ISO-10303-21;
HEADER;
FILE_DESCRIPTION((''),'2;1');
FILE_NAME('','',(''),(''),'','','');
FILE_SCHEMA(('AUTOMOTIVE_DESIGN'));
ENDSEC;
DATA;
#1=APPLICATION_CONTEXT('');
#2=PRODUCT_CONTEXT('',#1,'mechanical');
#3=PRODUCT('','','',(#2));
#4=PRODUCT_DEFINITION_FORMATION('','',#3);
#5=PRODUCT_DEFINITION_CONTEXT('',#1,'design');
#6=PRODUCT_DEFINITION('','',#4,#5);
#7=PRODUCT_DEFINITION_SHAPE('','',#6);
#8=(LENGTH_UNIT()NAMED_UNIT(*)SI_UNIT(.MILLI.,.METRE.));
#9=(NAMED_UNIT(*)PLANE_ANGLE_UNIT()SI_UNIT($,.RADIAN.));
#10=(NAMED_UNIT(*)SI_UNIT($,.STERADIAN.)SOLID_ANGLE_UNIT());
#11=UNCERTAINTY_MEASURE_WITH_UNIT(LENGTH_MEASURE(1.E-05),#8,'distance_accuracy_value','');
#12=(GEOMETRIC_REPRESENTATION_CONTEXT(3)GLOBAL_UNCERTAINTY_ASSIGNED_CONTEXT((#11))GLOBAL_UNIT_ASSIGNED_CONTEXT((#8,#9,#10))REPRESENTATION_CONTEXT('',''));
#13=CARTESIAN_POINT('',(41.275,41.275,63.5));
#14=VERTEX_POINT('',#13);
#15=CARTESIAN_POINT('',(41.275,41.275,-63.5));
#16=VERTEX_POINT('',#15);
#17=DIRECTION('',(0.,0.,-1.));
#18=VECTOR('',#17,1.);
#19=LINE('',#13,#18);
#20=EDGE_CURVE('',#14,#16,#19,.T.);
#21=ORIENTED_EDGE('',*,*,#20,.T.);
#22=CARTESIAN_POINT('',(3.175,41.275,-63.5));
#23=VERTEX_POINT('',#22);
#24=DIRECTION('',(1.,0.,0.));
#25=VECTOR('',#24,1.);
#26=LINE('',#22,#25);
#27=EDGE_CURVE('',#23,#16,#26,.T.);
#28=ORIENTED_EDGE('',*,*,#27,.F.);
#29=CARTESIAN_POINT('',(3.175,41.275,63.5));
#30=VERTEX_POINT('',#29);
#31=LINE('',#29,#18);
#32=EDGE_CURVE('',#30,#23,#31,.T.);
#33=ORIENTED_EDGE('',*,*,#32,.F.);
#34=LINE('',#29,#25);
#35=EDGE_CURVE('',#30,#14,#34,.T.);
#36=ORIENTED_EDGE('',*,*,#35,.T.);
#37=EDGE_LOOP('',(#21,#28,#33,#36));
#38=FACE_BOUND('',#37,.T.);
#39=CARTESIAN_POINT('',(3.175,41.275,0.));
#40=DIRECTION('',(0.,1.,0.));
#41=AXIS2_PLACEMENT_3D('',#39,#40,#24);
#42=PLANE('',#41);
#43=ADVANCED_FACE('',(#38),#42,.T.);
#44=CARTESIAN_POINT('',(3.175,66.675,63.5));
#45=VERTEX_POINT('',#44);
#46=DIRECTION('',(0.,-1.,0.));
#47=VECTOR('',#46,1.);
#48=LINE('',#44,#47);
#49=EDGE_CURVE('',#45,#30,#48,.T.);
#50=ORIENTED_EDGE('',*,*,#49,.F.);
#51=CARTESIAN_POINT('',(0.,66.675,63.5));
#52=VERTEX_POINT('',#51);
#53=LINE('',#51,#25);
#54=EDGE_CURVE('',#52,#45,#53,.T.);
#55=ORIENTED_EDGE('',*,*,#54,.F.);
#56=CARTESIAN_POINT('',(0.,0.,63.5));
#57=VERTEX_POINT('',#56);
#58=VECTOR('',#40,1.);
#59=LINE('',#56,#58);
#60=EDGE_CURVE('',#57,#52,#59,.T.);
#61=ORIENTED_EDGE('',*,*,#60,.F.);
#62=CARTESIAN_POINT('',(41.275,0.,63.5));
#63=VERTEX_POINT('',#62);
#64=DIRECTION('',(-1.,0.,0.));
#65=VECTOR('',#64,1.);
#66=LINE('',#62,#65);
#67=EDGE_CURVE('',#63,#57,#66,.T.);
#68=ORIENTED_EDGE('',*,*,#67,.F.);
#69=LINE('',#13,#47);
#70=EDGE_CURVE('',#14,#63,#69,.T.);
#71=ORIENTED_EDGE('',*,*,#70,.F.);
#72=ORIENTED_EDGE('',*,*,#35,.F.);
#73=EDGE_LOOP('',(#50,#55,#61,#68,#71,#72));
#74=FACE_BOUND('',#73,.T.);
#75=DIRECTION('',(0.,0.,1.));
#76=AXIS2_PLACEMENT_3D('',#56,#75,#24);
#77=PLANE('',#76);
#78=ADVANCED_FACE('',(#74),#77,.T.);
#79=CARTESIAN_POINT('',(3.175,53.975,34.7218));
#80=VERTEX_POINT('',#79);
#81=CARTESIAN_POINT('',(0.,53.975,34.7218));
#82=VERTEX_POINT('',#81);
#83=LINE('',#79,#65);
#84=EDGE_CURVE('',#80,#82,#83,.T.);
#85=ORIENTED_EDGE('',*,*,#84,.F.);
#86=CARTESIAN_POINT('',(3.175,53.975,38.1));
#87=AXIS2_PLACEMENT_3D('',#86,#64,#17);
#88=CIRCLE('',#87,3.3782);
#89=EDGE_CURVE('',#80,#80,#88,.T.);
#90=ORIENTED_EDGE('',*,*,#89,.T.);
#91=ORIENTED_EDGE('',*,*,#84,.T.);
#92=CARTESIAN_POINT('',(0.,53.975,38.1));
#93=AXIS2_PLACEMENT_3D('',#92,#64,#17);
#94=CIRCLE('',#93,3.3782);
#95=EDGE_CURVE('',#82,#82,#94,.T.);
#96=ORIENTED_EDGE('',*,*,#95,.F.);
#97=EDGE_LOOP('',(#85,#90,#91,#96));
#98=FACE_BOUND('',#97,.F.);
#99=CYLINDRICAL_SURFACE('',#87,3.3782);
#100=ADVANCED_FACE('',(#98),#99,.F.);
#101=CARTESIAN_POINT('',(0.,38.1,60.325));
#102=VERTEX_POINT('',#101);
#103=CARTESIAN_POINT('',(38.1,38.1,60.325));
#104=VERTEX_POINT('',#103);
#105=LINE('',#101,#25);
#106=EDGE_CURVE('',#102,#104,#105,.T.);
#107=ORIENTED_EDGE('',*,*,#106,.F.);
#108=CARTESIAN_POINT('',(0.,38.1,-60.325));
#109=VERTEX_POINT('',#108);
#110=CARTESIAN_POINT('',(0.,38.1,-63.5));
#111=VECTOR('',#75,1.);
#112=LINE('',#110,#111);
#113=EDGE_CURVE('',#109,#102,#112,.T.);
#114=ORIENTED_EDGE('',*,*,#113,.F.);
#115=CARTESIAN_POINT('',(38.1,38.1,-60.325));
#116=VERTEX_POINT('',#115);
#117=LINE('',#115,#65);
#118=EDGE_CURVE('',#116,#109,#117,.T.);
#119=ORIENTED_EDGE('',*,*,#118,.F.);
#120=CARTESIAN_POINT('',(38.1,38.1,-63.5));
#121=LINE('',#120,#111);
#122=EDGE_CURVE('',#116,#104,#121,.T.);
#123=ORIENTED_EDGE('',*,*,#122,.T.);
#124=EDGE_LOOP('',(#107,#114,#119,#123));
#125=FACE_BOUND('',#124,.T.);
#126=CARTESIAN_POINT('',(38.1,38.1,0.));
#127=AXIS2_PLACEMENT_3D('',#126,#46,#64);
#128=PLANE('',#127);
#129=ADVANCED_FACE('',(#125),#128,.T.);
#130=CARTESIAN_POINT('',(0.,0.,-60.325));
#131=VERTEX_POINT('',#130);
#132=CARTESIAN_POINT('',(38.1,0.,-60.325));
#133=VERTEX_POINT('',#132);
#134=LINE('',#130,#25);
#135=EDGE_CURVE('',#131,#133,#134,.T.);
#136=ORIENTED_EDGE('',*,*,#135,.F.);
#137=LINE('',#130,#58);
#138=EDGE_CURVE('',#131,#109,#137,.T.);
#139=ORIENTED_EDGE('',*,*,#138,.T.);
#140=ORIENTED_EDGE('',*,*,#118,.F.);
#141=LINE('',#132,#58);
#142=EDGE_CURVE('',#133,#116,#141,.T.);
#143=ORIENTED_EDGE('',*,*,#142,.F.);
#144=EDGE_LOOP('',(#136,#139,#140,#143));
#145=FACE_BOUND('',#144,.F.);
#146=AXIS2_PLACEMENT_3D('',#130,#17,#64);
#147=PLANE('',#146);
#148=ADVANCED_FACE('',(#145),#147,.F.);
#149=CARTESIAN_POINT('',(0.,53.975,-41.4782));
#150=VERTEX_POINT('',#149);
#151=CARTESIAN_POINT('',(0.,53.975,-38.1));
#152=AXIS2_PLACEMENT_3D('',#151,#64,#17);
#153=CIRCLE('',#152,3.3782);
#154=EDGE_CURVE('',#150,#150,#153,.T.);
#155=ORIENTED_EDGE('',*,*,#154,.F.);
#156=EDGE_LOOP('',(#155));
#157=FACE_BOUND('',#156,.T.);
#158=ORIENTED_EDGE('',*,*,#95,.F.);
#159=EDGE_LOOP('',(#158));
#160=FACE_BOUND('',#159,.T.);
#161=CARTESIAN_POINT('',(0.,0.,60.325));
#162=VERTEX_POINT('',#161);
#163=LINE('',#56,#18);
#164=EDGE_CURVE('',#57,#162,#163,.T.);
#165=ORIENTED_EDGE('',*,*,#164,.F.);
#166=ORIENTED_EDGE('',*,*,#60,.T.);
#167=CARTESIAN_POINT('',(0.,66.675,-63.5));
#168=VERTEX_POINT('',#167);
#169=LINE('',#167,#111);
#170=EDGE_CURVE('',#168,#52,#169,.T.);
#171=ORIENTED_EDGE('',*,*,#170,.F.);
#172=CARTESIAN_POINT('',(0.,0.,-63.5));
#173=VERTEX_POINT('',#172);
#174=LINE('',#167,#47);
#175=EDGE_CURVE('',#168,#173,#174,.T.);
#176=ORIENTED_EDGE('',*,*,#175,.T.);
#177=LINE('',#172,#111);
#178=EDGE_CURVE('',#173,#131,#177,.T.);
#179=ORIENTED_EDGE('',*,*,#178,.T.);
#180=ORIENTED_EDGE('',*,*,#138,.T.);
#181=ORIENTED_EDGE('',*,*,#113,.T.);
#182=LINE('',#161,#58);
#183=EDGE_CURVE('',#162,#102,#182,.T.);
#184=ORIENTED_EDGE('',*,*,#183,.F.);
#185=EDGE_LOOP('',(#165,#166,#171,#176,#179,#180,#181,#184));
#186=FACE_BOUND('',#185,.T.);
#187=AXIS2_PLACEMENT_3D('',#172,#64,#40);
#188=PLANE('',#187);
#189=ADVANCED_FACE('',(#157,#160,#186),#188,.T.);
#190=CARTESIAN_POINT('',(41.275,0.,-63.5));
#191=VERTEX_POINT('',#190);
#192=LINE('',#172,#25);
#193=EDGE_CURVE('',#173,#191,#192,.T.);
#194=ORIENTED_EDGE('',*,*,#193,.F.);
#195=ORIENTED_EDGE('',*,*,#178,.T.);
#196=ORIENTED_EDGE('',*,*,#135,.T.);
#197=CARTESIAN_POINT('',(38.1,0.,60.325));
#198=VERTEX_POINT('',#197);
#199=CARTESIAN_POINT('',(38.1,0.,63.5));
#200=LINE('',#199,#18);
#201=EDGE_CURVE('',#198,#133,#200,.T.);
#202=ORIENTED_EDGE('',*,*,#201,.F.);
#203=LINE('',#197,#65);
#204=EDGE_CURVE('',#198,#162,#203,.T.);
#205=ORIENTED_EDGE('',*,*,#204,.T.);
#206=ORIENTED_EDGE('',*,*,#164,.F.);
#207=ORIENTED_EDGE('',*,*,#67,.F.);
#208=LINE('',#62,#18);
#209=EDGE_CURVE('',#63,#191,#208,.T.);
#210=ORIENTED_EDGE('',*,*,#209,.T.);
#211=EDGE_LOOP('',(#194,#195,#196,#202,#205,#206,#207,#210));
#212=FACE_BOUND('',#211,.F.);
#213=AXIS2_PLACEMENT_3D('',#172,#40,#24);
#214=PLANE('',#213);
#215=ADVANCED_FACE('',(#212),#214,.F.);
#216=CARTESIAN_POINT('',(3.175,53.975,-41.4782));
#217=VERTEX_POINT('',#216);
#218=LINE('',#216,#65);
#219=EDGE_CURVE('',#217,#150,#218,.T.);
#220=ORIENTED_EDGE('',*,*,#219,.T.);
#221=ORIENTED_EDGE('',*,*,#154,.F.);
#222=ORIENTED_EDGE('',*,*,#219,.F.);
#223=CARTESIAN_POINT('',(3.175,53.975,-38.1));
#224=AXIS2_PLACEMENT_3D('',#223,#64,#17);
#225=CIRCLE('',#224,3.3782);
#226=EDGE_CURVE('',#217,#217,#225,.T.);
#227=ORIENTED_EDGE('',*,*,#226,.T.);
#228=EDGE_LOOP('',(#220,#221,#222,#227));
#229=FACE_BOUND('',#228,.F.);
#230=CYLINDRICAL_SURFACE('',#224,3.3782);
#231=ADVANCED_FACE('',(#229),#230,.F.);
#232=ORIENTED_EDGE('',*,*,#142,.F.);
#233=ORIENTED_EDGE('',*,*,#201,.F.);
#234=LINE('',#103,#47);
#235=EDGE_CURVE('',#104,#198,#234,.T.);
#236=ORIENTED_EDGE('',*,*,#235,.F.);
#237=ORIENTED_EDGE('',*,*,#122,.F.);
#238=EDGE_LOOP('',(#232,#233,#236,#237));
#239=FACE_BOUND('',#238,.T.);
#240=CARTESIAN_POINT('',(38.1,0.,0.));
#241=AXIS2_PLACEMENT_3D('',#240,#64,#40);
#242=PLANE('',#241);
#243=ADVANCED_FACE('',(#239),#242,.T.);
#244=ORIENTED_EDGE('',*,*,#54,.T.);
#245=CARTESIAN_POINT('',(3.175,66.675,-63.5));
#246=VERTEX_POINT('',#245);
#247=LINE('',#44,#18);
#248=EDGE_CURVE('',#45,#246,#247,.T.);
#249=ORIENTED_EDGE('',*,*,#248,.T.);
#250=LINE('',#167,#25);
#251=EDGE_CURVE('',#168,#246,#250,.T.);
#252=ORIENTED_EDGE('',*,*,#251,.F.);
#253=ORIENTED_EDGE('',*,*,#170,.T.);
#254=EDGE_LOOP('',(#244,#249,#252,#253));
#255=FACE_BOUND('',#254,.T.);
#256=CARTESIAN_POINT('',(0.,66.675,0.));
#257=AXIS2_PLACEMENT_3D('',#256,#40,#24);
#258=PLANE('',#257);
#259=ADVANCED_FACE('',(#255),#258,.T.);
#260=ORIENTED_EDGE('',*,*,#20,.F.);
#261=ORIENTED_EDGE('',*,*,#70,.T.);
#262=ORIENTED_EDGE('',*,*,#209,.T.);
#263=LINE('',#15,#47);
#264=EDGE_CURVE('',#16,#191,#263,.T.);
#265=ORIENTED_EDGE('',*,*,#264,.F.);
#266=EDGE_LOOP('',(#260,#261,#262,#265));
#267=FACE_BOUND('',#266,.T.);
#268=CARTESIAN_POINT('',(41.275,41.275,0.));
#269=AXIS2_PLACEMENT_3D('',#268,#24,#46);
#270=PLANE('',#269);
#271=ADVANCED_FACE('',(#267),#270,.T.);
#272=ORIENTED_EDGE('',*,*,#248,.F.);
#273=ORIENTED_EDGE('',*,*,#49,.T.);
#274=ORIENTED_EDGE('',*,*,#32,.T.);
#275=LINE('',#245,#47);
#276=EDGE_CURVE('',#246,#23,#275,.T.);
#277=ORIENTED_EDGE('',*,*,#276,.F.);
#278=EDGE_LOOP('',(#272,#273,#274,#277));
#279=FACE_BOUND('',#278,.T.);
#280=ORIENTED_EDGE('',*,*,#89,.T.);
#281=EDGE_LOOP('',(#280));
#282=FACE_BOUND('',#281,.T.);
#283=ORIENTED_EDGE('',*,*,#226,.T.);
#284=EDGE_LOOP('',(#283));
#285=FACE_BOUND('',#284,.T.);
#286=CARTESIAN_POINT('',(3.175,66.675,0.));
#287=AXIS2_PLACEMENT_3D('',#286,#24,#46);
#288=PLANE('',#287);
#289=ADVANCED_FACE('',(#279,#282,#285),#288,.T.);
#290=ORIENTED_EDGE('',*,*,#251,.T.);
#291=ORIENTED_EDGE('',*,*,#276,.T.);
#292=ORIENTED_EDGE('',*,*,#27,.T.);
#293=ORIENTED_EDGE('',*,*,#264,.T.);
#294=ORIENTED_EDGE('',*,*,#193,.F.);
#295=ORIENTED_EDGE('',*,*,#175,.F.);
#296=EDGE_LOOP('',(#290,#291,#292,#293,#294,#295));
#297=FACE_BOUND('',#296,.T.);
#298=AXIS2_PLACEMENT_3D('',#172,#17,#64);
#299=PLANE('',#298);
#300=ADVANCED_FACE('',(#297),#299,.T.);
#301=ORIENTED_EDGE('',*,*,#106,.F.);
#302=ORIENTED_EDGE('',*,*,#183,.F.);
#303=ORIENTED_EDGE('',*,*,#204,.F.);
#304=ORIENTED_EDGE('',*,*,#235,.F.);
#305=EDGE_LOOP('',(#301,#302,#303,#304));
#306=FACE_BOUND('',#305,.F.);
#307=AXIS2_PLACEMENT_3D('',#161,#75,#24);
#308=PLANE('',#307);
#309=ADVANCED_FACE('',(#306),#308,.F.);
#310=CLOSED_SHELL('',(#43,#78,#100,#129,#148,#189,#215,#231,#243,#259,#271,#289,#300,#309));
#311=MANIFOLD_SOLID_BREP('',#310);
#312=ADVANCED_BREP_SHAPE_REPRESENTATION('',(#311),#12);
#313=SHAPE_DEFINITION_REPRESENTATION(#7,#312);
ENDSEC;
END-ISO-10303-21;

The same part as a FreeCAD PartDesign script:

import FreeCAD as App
import Part
import Sketcher
from FreeCAD import Vector
Q = App.Units.Quantity

doc = App.newDocument("Part")
body = doc.addObject("PartDesign::Body", "Body")

# Sketch on XY plane
sketch1 = doc.addObject("Sketcher::SketchObject", "Sketch")
body.addObject(sketch1)
sketch1.AttachmentSupport = (doc.XY_Plane, [""])
sketch1.MapMode = "FlatFace"
sketch1.addGeometry(Part.LineSegment(Vector(3.2, 66.7, 0), Vector(0, 66.7, 0)), False)
sketch1.addGeometry(Part.LineSegment(Vector(0, 66.7, 0), Vector(0, 38.1, 0)), False)
sketch1.addGeometry(Part.LineSegment(Vector(0, 38.1, 0), Vector(38.1, 38.1, 0)), False)
sketch1.addGeometry(Part.LineSegment(Vector(38.1, 38.1, 0), Vector(38.1, 0, 0)), False)
sketch1.addGeometry(Part.LineSegment(Vector(38.1, 0, 0), Vector(41.3, 0, 0)), False)
sketch1.addGeometry(Part.LineSegment(Vector(41.3, 0, 0), Vector(41.3, 41.3, 0)), False)
sketch1.addGeometry(Part.LineSegment(Vector(41.3, 41.3, 0), Vector(3.2, 41.3, 0)), False)
sketch1.addGeometry(Part.LineSegment(Vector(3.2, 41.3, 0), Vector(3.2, 66.7, 0)), False)
sketch1.addConstraint(Sketcher.Constraint("Coincident", 0, 2, 1, 1))
sketch1.addConstraint(Sketcher.Constraint("Coincident", 1, 2, 2, 1))
sketch1.addConstraint(Sketcher.Constraint("Coincident", 2, 2, 3, 1))
sketch1.addConstraint(Sketcher.Constraint("Coincident", 3, 2, 4, 1))
sketch1.addConstraint(Sketcher.Constraint("Coincident", 4, 2, 5, 1))
sketch1.addConstraint(Sketcher.Constraint("Coincident", 5, 2, 6, 1))
sketch1.addConstraint(Sketcher.Constraint("Coincident", 6, 2, 7, 1))
sketch1.addConstraint(Sketcher.Constraint("Coincident", 7, 2, 0, 1))
sketch1.addConstraint(Sketcher.Constraint("Horizontal", 0))
sketch1.addConstraint(Sketcher.Constraint("Vertical", 1))
sketch1.addConstraint(Sketcher.Constraint("Horizontal", 2))
sketch1.addConstraint(Sketcher.Constraint("Vertical", 3))
sketch1.addConstraint(Sketcher.Constraint("Horizontal", 4))
sketch1.addConstraint(Sketcher.Constraint("Vertical", 5))
sketch1.addConstraint(Sketcher.Constraint("Horizontal", 6))
sketch1.addConstraint(Sketcher.Constraint("Vertical", 7))
sketch1.addConstraint(Sketcher.Constraint("PointOnObject", 0, 2, -2))
sketch1.addConstraint(Sketcher.Constraint("PointOnObject", 3, 2, -1))
sketch1.addConstraint(Sketcher.Constraint("Equal", 0, 4))
sketch1.addConstraint(Sketcher.Constraint("Equal", 6, 3))
sketch1.addConstraint(Sketcher.Constraint("DistanceY", 7, 1, 7, 2, Q("1 in")))
sketch1.addConstraint(Sketcher.Constraint("DistanceX", 2, 1, 2, 2, Q("1.5 in")))
sketch1.addConstraint(Sketcher.Constraint("DistanceX", 0, 2, 0, 1, Q("0.125 in")))
sketch1.addConstraint(Sketcher.Constraint("DistanceY", 2, 2, 5, 2, Q("0.125 in")))
pad1 = doc.addObject("PartDesign::Pad", "Pad")
body.addObject(pad1)
pad1.Profile = sketch1
pad1.Length = Q("5 in")
pad1.Midplane = True

# Sketch on XY plane
sketch2 = doc.addObject("Sketcher::SketchObject", "Sketch001")
body.addObject(sketch2)
sketch2.AttachmentSupport = (doc.XY_Plane, [""])
sketch2.MapMode = "FlatFace"
sketch2.AttachmentOffset = App.Placement(Vector(0, 0, 2.5 * 25.4), App.Rotation())
sketch2.addGeometry(Part.LineSegment(Vector(38, 38, 0), Vector(0, 38, 0)), False)
sketch2.addGeometry(Part.LineSegment(Vector(0, 38, 0), Vector(0, 0, 0)), False)
sketch2.addGeometry(Part.LineSegment(Vector(0, 0, 0), Vector(38, 0, 0)), False)
sketch2.addGeometry(Part.LineSegment(Vector(38, 0, 0), Vector(38, 38, 0)), False)
sketch2.addConstraint(Sketcher.Constraint("Coincident", 0, 2, 1, 1))
sketch2.addConstraint(Sketcher.Constraint("Coincident", 1, 2, 2, 1))
sketch2.addConstraint(Sketcher.Constraint("Coincident", 2, 2, 3, 1))
sketch2.addConstraint(Sketcher.Constraint("Coincident", 3, 2, 0, 1))
sketch2.addConstraint(Sketcher.Constraint("Horizontal", 0))
sketch2.addConstraint(Sketcher.Constraint("Vertical", 1))
sketch2.addConstraint(Sketcher.Constraint("Horizontal", 2))
sketch2.addConstraint(Sketcher.Constraint("Vertical", 3))
sketch2.addConstraint(Sketcher.Constraint("Coincident", 1, 2, -1, 1))
sketch2.addConstraint(Sketcher.Constraint("Equal", 2, 1))
sketch2.addConstraint(Sketcher.Constraint("DistanceX", 0, 2, 0, 1, Q("1.5 in")))
pad2 = doc.addObject("PartDesign::Pad", "Pad001")
body.addObject(pad2)
pad2.Profile = sketch2
pad2.Length = Q("0.125 in")
pad2.Reversed = True

# Sketch on XY plane
sketch3 = doc.addObject("Sketcher::SketchObject", "Sketch002")
body.addObject(sketch3)
sketch3.AttachmentSupport = (doc.XY_Plane, [""])
sketch3.MapMode = "FlatFace"
sketch3.AttachmentOffset = App.Placement(Vector(0, 0, -2.5 * 25.4), App.Rotation())
sketch3.addGeometry(Part.LineSegment(Vector(0, 38, 0), Vector(38, 38, 0)), False)
sketch3.addGeometry(Part.LineSegment(Vector(38, 38, 0), Vector(38, 0, 0)), False)
sketch3.addGeometry(Part.LineSegment(Vector(38, 0, 0), Vector(0, 0, 0)), False)
sketch3.addGeometry(Part.LineSegment(Vector(0, 0, 0), Vector(0, 38, 0)), False)
sketch3.addConstraint(Sketcher.Constraint("Coincident", 0, 2, 1, 1))
sketch3.addConstraint(Sketcher.Constraint("Coincident", 1, 2, 2, 1))
sketch3.addConstraint(Sketcher.Constraint("Coincident", 2, 2, 3, 1))
sketch3.addConstraint(Sketcher.Constraint("Coincident", 3, 2, 0, 1))
sketch3.addConstraint(Sketcher.Constraint("Horizontal", 0))
sketch3.addConstraint(Sketcher.Constraint("Vertical", 1))
sketch3.addConstraint(Sketcher.Constraint("Horizontal", 2))
sketch3.addConstraint(Sketcher.Constraint("Vertical", 3))
sketch3.addConstraint(Sketcher.Constraint("Coincident", 2, 2, -1, 1))
sketch3.addConstraint(Sketcher.Constraint("Equal", 2, 1))
sketch3.addConstraint(Sketcher.Constraint("DistanceX", 0, 1, 0, 2, Q("1.5 in")))
pad3 = doc.addObject("PartDesign::Pad", "Pad002")
body.addObject(pad3)
pad3.Profile = sketch3
pad3.Length = Q("0.125 in")

# Sketch on YZ plane
sketch4 = doc.addObject("Sketcher::SketchObject", "Sketch003")
body.addObject(sketch4)
sketch4.AttachmentSupport = (doc.YZ_Plane, [""])
sketch4.MapMode = "FlatFace"
sketch4.AttachmentOffset = App.Placement(Vector(0, 0, 0.125 * 25.4), App.Rotation())
sketch4.addGeometry(Part.Circle(Vector(54, 38.1, 0), Vector(0, 0, 1), 3.4), False)
sketch4.addGeometry(Part.Circle(Vector(54, -38.1, 0), Vector(0, 0, 1), 3.4), False)
sketch4.addConstraint(Sketcher.Constraint("Equal", 0, 1))
sketch4.addConstraint(Sketcher.Constraint("Symmetric", 0, 3, 1, 3, -1))
sketch4.addConstraint(Sketcher.Constraint("Diameter", 0, Q("0.266 in")))
sketch4.addConstraint(Sketcher.Constraint("DistanceY", 1, 3, 0, 3, Q("3 in")))
sketch4.addConstraint(Sketcher.Constraint("DistanceX", -1, 1, 0, 3, Q("2.125 in")))
doc.recompute()
hole = doc.addObject("PartDesign::Hole", "Hole")
body.addObject(hole)
hole.Profile = sketch4
hole.ThreadType = "None"
hole.Diameter = Q("0.266 in")
hole.DepthType = "ThroughAll"

doc.recompute()
